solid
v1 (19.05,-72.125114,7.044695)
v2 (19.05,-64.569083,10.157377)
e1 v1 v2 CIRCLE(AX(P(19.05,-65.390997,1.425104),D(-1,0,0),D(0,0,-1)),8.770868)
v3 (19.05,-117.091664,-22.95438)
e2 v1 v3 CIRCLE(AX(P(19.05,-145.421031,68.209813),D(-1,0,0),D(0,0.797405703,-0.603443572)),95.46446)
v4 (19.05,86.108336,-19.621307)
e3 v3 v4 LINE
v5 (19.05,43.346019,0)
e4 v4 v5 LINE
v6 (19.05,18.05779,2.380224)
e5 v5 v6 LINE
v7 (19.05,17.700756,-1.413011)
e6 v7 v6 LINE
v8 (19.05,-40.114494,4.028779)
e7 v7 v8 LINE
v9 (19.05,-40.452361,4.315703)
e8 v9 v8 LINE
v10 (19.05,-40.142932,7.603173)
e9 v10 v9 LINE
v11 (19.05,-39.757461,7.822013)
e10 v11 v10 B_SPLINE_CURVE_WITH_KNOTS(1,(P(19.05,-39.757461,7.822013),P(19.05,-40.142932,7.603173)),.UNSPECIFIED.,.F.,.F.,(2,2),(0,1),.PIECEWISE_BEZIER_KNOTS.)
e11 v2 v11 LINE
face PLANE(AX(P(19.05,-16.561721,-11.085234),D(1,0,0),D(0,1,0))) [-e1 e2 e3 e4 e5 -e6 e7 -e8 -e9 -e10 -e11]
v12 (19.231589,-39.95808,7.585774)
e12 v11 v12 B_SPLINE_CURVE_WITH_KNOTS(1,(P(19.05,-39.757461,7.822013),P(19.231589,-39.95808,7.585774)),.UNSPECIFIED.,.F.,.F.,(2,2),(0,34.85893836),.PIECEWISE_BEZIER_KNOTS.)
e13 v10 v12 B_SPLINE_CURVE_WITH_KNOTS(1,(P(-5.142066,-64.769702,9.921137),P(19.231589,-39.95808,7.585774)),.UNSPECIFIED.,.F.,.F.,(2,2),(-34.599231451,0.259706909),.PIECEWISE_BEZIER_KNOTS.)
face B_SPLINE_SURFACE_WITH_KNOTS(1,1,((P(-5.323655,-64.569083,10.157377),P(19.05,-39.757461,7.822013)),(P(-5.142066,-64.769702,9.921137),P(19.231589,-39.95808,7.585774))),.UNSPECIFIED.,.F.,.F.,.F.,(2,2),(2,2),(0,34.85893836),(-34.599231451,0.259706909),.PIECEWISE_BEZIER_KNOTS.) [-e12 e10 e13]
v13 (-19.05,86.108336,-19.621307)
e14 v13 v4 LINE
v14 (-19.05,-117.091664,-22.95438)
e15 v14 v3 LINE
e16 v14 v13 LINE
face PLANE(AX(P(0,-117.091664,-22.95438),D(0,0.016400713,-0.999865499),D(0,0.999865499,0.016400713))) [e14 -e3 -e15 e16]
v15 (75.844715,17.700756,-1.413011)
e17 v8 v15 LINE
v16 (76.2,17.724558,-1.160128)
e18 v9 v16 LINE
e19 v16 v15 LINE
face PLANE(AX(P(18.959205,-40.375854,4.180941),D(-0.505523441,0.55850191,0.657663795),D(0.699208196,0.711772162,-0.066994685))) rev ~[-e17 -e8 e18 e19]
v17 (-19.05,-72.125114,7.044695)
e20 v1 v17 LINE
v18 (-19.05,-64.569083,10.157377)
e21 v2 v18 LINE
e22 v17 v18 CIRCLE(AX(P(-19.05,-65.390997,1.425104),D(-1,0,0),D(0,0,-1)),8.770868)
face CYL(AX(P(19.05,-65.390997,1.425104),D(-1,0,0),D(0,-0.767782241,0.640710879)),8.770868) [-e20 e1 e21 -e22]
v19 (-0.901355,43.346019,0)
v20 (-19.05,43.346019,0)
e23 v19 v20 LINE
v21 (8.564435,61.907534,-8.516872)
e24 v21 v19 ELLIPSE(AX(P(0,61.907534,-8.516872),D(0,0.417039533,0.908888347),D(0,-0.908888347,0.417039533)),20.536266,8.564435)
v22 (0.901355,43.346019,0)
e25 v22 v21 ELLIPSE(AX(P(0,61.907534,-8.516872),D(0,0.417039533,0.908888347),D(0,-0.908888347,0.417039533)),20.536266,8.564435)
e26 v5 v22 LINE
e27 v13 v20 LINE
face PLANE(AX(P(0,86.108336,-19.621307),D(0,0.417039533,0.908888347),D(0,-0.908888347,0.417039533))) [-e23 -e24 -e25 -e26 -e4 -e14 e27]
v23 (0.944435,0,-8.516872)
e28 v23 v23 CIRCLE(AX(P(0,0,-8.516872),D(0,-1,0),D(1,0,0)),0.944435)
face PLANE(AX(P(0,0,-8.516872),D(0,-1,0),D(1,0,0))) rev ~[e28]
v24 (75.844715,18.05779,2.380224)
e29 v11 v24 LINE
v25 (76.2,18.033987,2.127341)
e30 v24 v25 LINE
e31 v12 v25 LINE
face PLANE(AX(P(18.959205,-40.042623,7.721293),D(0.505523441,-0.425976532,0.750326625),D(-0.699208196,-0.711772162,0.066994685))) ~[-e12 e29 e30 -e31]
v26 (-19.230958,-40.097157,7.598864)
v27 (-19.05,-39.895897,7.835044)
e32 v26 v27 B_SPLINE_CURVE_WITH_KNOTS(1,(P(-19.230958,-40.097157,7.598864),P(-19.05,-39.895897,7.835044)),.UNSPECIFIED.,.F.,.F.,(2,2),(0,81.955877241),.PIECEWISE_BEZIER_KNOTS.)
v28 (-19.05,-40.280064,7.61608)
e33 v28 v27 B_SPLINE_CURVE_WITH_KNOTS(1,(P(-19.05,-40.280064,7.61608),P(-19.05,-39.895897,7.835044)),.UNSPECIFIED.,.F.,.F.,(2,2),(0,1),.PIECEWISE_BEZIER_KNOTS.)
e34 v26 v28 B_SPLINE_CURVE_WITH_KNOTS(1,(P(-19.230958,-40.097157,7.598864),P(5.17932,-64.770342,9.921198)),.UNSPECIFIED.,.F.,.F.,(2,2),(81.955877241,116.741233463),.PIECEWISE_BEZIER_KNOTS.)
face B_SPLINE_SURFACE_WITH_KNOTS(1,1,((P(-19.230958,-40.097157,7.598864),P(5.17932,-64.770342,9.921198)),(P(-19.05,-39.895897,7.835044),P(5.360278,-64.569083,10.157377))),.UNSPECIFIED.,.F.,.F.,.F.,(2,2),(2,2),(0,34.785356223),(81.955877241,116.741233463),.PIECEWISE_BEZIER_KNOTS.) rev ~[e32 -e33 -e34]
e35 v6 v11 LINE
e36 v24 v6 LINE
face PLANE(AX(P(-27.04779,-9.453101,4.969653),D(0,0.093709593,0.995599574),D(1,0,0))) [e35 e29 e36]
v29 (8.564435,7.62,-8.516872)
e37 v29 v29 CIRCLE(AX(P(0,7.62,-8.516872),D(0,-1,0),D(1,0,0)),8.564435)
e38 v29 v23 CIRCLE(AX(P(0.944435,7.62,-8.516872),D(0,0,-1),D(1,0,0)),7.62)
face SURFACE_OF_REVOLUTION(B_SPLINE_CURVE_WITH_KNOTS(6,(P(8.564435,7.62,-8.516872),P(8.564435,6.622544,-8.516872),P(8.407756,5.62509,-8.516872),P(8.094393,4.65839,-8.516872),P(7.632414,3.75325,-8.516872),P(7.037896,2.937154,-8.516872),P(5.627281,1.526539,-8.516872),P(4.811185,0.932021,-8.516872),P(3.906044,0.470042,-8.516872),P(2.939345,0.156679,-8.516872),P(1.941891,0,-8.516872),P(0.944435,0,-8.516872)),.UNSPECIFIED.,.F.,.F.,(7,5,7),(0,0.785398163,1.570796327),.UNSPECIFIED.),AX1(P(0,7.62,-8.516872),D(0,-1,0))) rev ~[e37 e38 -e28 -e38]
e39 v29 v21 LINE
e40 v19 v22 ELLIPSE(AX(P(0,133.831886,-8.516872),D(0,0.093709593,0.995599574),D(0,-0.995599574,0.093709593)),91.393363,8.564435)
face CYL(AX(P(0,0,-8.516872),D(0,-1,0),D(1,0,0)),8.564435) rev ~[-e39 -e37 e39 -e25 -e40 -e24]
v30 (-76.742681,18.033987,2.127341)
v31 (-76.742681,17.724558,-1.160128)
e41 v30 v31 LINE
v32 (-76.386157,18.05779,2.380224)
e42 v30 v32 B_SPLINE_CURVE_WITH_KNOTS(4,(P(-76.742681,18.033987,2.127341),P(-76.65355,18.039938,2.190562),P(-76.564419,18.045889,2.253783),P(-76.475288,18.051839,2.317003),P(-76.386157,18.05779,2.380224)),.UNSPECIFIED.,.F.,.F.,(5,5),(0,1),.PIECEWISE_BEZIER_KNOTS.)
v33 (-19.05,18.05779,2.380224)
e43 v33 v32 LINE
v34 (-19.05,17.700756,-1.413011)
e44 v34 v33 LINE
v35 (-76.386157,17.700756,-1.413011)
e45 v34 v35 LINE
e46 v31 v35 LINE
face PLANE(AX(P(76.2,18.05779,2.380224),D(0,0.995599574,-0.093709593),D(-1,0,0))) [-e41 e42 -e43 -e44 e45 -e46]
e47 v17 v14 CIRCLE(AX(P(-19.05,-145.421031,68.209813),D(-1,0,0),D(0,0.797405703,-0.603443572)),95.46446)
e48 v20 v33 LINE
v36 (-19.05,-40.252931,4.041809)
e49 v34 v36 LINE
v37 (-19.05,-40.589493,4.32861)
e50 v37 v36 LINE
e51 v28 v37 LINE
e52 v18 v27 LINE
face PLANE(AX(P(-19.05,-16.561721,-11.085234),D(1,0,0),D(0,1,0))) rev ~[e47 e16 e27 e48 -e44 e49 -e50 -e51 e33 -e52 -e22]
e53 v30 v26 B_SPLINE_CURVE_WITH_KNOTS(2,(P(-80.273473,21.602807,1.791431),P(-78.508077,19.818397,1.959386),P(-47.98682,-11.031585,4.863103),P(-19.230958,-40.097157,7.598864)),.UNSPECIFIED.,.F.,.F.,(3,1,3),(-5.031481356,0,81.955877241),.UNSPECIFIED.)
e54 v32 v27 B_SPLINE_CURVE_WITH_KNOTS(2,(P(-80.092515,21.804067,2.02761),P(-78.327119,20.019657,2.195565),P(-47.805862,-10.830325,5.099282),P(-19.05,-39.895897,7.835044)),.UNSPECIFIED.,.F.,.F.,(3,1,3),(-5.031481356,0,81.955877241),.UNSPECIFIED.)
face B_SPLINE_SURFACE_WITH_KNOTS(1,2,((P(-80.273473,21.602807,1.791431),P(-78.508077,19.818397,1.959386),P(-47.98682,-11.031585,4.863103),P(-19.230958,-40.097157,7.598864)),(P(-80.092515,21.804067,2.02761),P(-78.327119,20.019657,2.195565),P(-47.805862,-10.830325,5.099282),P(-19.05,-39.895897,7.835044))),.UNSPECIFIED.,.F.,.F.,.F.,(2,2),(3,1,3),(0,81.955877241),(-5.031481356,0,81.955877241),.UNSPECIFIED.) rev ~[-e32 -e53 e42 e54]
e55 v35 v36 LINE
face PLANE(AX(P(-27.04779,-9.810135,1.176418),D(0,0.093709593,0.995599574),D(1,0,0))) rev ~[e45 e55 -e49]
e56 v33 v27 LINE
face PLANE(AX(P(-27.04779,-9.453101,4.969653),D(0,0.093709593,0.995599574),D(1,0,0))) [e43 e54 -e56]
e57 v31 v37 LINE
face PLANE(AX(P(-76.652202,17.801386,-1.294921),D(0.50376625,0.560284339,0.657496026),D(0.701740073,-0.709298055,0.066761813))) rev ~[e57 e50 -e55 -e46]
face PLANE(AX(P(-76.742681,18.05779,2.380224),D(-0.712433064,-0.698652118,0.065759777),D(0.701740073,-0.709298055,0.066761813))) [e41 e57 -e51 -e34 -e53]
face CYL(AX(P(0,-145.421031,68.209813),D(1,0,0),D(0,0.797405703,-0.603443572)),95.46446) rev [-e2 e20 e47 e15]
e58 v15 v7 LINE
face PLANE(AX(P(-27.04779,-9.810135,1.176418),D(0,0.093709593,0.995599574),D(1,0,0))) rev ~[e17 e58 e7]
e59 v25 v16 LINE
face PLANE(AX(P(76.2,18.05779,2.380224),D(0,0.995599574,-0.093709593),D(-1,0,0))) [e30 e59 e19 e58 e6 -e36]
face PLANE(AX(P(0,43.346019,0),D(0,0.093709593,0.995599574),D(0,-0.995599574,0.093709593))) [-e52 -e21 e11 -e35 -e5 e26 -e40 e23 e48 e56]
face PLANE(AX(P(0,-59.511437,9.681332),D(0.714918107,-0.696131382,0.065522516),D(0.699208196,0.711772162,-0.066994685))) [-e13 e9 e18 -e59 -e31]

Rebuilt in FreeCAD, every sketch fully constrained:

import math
import FreeCAD as App
import Part
import Sketcher
Q = App.Units.Quantity


def edges_at(feature, points):
    """Names of the edges that pass closest to the given points."""
    edges = feature.Shape.Edges
    near = lambda p: min(range(len(edges)), key=lambda i: edges[i].distToShape(Part.Vertex(*p))[0])
    return sorted({f"Edge{near(p) + 1}" for p in points})


def add_polygon(sketch, points):
    """Adds a closed chain of lines whose ends are joined by coincident constraints."""
    first, n = sketch.GeometryCount, len(points)
    for a, b in zip(points, points[1:] + points[:1]):
        sketch.addGeometry(Part.LineSegment(App.Vector(*a, 0), App.Vector(*b, 0)), False)
    for i in range(n):
        sketch.addConstraint(Sketcher.Constraint("Coincident", first + i, 2, first + (i + 1) % n, 1))

doc = App.newDocument("Part")
body = doc.addObject("PartDesign::Body", "Body")

sketch1 = body.newObject("Sketcher::SketchObject", "Sketch")
sketch1.AttachmentSupport = (doc.getObject("YZ_Plane"), [""])
sketch1.MapMode = "FlatFace"
sketch1.addGeometry(Part.ArcOfCircle(Part.Circle(App.Vector(-145, 68, 0), App.Vector(0, 0, 1), 95), math.radians(-73), math.radians(-37)), False)
sketch1.addGeometry(Part.LineSegment(App.Vector(-117, -23, 0), App.Vector(86, -20, 0)), False)
sketch1.addGeometry(Part.LineSegment(App.Vector(86, -20, 0), App.Vector(43, 0, 0)), False)
sketch1.addGeometry(Part.LineSegment(App.Vector(43, 0, 0), App.Vector(-69, 11, 0)), False)
sketch1.addConstraint(Sketcher.Constraint("Coincident", 0, 1, 1, 1))
sketch1.addConstraint(Sketcher.Constraint("Coincident", 1, 2, 2, 1))
sketch1.addConstraint(Sketcher.Constraint("Coincident", 2, 2, 3, 1))
sketch1.addConstraint(Sketcher.Constraint("Coincident", 3, 2, 0, 2))
sketch1.addConstraint(Sketcher.Constraint("PointOnObject", 2, 2, -1))
sketch1.addConstraint(Sketcher.Constraint("DistanceX", 0, 1, 1, 2, Q("8 in")))
sketch1.addConstraint(Sketcher.Constraint("Radius", 0, 95.46446))
sketch1.addConstraint(Sketcher.Constraint("DistanceY", -1, 1, 3, 2, 10.602398))
sketch1.addConstraint(Sketcher.Constraint("DistanceX", 0, 3, -1, 1, 145.421031))
sketch1.addConstraint(Sketcher.Constraint("DistanceY", 0, 1, -1, 1, 22.95438))
sketch1.addConstraint(Sketcher.Constraint("DistanceX", -1, 1, 2, 2, 43.346019))
sketch1.addConstraint(Sketcher.Constraint("DistanceY", 1, 2, 0, 3, 87.83112))
sketch1.addConstraint(Sketcher.Constraint("Distance", 2, 47.049033))
pad1 = body.newObject("PartDesign::Pad", "Pad")
pad1.Profile = sketch1
pad1.Type = "TwoLengths"
pad1.Length = Q("0.75 in")
pad1.Length2 = Q("0.75 in")
doc.recompute()

fillet = body.newObject("PartDesign::Fillet", "Fillet")
fillet.Base = (pad1, edges_at(pad1, [(0, -69.297, 10.602)]))
fillet.Radius = 8.770868

sketch2 = body.newObject("Sketcher::SketchObject", "Sketch001")
sketch2.Placement = App.Placement(App.Vector(0, 0.380643, 4.044064), App.Rotation(App.Vector(1, 0, 0), App.Vector(0, 0.995599574, -0.093709593), App.Vector(0, 0.093709593, 0.995599574), "ZXY"))
add_polygon(sketch2, [(-77, 18), (0, -60), (76, 18)])
sketch2.addConstraint(Sketcher.Constraint("Horizontal", 2))
sketch2.addConstraint(Sketcher.Constraint("PointOnObject", 0, 2, -2))
sketch2.addConstraint(Sketcher.Constraint("DistanceX", -1, 1, 1, 2, Q("3 in")))
sketch2.addConstraint(Sketcher.Constraint("DistanceX", 2, 2, 2, 1, 152.942681))
sketch2.addConstraint(Sketcher.Constraint("Distance", 0, 109.360551))
sketch2.addConstraint(Sketcher.Constraint("DistanceY", 0, 2, -1, 1, 60.156795))
pad2 = body.newObject("PartDesign::Pad", "Pad001")
pad2.Profile = sketch2
pad2.Length = Q("0.15 in")
pad2.Reversed = True
doc.recompute()

chamfer = body.newObject("PartDesign::Chamfer", "Chamfer")
chamfer.Base = (pad2, edges_at(pad2, [
    (47.625, -11.388, 1.325),
    (47.625, -11.031, 5.118),
    (-47.896, -11.099, 5.125),
    (-47.896, -11.456, 1.331),
]))
chamfer.Size = Q("0.01 in")

sketch3 = body.newObject("Sketcher::SketchObject", "Sketch002")
sketch3.AttachmentSupport = (doc.getObject("XZ_Plane"), [""])
sketch3.MapMode = "FlatFace"
sketch3.addGeometry(Part.Circle(App.Vector(0, -9, 0), App.Vector(0, 0, 1), 9), False)
sketch3.addConstraint(Sketcher.Constraint("PointOnObject", 0, 3, -2))
sketch3.addConstraint(Sketcher.Constraint("Diameter", 0, 17.12887))
sketch3.addConstraint(Sketcher.Constraint("DistanceY", 0, 3, -1, 1, 8.516872))
pocket1 = body.newObject("PartDesign::Pocket", "Pocket")
pocket1.Profile = sketch3
pocket1.Length = Q("5.19 in")
doc.recompute()

fillet2 = body.newObject("PartDesign::Fillet", "Fillet001")
fillet2.Base = (pocket1, edges_at(pocket1, [(-8.564, 0, -8.517)]))
fillet2.Radius = Q("0.3 in")

doc.recompute()
